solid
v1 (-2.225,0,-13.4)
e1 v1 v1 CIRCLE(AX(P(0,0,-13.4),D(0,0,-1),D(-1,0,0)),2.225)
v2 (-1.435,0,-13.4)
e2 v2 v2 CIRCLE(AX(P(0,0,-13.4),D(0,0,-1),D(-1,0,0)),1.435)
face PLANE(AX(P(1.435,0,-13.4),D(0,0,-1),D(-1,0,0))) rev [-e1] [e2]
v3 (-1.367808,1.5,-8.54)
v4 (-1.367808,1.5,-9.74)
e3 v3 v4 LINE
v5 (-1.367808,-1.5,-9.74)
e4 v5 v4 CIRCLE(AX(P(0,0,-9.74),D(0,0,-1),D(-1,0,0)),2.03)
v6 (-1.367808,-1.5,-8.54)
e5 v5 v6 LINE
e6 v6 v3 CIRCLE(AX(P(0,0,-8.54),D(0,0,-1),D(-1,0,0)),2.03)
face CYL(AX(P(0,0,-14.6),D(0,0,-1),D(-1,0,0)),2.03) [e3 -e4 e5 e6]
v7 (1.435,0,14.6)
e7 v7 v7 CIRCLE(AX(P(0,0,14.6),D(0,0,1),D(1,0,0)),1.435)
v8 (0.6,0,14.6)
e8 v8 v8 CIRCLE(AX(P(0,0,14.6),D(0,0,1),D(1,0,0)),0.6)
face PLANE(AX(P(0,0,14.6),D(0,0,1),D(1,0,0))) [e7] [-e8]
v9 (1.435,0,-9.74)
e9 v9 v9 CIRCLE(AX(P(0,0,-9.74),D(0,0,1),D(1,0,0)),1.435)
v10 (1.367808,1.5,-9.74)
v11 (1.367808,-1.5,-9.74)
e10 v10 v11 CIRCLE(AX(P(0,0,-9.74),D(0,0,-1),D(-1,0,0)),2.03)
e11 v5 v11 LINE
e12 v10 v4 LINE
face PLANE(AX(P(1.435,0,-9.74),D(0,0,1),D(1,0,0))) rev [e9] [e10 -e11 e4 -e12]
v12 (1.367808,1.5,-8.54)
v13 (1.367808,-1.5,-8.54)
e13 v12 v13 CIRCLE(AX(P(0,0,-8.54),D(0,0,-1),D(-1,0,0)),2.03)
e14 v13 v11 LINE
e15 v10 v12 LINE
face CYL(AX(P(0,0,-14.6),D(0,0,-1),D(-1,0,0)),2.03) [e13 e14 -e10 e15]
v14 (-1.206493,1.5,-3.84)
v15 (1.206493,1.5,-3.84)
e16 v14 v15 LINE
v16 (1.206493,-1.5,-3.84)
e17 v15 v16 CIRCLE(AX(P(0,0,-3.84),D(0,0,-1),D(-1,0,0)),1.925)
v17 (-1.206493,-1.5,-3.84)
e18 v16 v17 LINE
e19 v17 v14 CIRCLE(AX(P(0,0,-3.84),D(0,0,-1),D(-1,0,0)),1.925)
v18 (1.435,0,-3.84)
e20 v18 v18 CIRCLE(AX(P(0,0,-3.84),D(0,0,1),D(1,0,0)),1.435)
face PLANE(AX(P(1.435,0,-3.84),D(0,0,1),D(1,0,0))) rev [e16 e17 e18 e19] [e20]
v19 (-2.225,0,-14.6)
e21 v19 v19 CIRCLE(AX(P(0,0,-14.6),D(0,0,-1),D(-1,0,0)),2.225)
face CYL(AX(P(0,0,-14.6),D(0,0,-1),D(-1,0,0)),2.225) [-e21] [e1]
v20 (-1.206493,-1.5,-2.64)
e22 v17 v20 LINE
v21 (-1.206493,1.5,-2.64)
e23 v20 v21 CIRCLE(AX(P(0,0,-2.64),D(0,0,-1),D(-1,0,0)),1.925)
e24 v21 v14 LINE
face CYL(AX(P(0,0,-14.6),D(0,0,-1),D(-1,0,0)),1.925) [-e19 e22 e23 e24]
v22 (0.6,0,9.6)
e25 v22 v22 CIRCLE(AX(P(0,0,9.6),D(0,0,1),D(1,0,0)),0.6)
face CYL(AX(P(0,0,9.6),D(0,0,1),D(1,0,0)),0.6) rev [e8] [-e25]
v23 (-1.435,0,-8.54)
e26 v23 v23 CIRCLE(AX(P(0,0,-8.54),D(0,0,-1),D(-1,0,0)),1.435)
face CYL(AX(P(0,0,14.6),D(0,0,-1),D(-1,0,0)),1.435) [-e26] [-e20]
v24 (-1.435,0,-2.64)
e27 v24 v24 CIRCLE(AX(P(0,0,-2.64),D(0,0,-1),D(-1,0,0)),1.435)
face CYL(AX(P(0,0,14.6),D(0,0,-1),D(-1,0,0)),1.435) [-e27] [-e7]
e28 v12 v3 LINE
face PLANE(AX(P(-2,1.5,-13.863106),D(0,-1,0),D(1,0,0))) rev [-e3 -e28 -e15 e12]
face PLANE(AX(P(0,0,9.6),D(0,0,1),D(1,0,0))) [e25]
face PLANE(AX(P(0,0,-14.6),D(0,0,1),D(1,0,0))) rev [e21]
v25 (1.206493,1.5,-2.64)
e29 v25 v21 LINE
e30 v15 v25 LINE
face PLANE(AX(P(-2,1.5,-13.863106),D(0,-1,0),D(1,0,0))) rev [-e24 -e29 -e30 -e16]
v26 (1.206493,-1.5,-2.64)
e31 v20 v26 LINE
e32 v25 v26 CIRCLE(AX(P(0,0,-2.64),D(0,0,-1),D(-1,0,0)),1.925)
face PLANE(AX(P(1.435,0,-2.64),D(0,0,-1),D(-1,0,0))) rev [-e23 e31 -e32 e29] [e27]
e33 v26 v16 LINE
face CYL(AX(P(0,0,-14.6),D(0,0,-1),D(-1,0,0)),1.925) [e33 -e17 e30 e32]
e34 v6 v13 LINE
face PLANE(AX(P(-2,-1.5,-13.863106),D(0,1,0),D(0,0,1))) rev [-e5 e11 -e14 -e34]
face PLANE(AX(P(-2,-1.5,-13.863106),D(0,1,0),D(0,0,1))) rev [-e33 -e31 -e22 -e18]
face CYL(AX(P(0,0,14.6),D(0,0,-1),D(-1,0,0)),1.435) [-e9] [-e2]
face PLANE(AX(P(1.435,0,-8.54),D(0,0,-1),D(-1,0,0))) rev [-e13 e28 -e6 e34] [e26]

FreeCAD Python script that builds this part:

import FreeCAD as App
import Part
import Sketcher

V = App.Vector
Q = App.Units.Quantity


def add_polygon(sketch, points):
    """Adds a closed chain of lines whose ends are joined by coincident constraints."""
    first, n = sketch.GeometryCount, len(points)
    for a, b in zip(points, points[1:] + points[:1]):
        sketch.addGeometry(Part.LineSegment(App.Vector(*a, 0), App.Vector(*b, 0)), False)
    for i in range(n):
        sketch.addConstraint(Sketcher.Constraint("Coincident", first + i, 2, first + (i + 1) % n, 1))

doc = App.newDocument("Part")
body = doc.addObject("PartDesign::Body", "Body")

# Sketch on XY plane
sketch1 = body.newObject("Sketcher::SketchObject", "Sketch")
sketch1.AttachmentSupport = (doc.getObject("XY_Plane"), [""])
sketch1.MapMode = "FlatFace"
sketch1.addGeometry(Part.Circle(V(0, 0, 0), V(0, 0, 1), 1.435), False)
sketch1.addConstraint([
    Sketcher.Constraint("Coincident", 0, 3, -1, 1),
    Sketcher.Constraint("Diameter", 0, Q("2.87 mm")),
])
pad1 = body.newObject("PartDesign::Pad", "Pad")
pad1.Profile = sketch1
pad1.Length = 29.2
pad1.Midplane = True

# Sketch on XY plane
sketch2 = body.newObject("Sketcher::SketchObject", "Sketch001")
sketch2.AttachmentSupport = (doc.getObject("XY_Plane"), [""])
sketch2.MapMode = "FlatFace"
sketch2.AttachmentOffset = App.Placement(V(0, 0, 14.6), App.Rotation())
sketch2.addGeometry(Part.Circle(V(0, 0, 0), V(0, 0, 1), 0.6), False)
sketch2.addConstraint([
    Sketcher.Constraint("Coincident", 0, 3, -1, 1),
    Sketcher.Constraint("Diameter", 0, Q("1.2 mm")),
])
pocket1 = body.newObject("PartDesign::Pocket", "Pocket")
pocket1.Profile = sketch2
pocket1.Length = 5

# Sketch on XZ plane
sketch3 = body.newObject("Sketcher::SketchObject", "Sketch002")
sketch3.AttachmentSupport = (doc.getObject("XZ_Plane"), [""])
sketch3.MapMode = "FlatFace"
add_polygon(sketch3, [(1.435, -3.84), (1.435, -2.64), (1.925, -2.64), (1.925, -3.84)])  # lines 0-3
add_polygon(sketch3, [(1.435, -9.74), (1.435, -8.54), (2.03, -8.54), (2.03, -9.74)])  # lines 4-7
add_polygon(sketch3, [(1.435, -14.6), (1.435, -13.4), (2.225, -13.4), (2.225, -14.6)])  # lines 8-11
sketch3.addConstraint([
    Sketcher.Constraint("Vertical", 0),
    Sketcher.Constraint("Horizontal", 1),
    Sketcher.Constraint("Vertical", 2),
    Sketcher.Constraint("Horizontal", 3),
    Sketcher.Constraint("Vertical", 4),
    Sketcher.Constraint("Horizontal", 5),
    Sketcher.Constraint("Vertical", 6),
    Sketcher.Constraint("Horizontal", 7),
    Sketcher.Constraint("Vertical", 8),
    Sketcher.Constraint("Horizontal", 9),
    Sketcher.Constraint("Vertical", 10),
    Sketcher.Constraint("Horizontal", 11),
    Sketcher.Constraint("Vertical", 3, 2, 4, 2),
    Sketcher.Constraint("Vertical", 7, 2, 8, 2),
    Sketcher.Constraint("Equal", 2, 4),
    Sketcher.Constraint("Equal", 6, 8),
    Sketcher.Constraint("DistanceY", 0, 1, 0, 2, Q("1.2 mm")),
    Sketcher.Constraint("DistanceX", 1, 1, 1, 2, Q("0.49 mm")),
    Sketcher.Constraint("DistanceX", 9, 1, 9, 2, Q("0.79 mm")),
    Sketcher.Constraint("DistanceY", 8, 2, -1, 1, Q("13.4 mm")),
    Sketcher.Constraint("DistanceY", 4, 2, 3, 2, Q("4.7 mm")),
    Sketcher.Constraint("DistanceX", 5, 1, 5, 2, Q("0.595 mm")),
    Sketcher.Constraint("DistanceY", 0, 2, -1, 1, Q("2.64 mm")),
    Sketcher.Constraint("DistanceX", -1, 1, 5, 2, Q("2.03 mm")),
])
revolution = body.newObject("PartDesign::Revolution", "Revolution")
revolution.Profile = sketch3
revolution.ReferenceAxis = (sketch3, ["V_Axis"])
revolution.Angle = 360

# Sketch on XY plane
sketch4 = body.newObject("Sketcher::SketchObject", "Sketch003")
sketch4.AttachmentSupport = (doc.getObject("XY_Plane"), [""])
sketch4.MapMode = "FlatFace"
sketch4.AttachmentOffset = App.Placement(V(0, 0, 14.6), App.Rotation())
add_polygon(sketch4, [(-2, 2.5), (-2, 1.5), (2, 1.5), (2, 2.5)])  # lines 0-3
add_polygon(sketch4, [(-2, -1.5), (-2, -2.5), (2, -2.5), (2, -1.5)])  # lines 4-7
sketch4.addConstraint([
    Sketcher.Constraint("Vertical", 0),
    Sketcher.Constraint("Horizontal", 1),
    Sketcher.Constraint("Vertical", 2),
    Sketcher.Constraint("Horizontal", 3),
    Sketcher.Constraint("Vertical", 4),
    Sketcher.Constraint("Horizontal", 5),
    Sketcher.Constraint("Vertical", 6),
    Sketcher.Constraint("Horizontal", 7),
    Sketcher.Constraint("Symmetric", 2, 2, 4, 2, -1, 1),
    Sketcher.Constraint("Symmetric", 0, 2, 6, 2, -1, 1),
    Sketcher.Constraint("Vertical", 3, 2, 4, 2),
    Sketcher.Constraint("DistanceX", 1, 1, 1, 2, Q("4 mm")),
    Sketcher.Constraint("DistanceY", 0, 2, 0, 1, Q("1 mm")),
    Sketcher.Constraint("DistanceY", 4, 2, 0, 2, Q("4 mm")),
])
pocket2 = body.newObject("PartDesign::Pocket", "Pocket001")
pocket2.Profile = sketch4
pocket2.Length = 24.34

doc.recompute()
